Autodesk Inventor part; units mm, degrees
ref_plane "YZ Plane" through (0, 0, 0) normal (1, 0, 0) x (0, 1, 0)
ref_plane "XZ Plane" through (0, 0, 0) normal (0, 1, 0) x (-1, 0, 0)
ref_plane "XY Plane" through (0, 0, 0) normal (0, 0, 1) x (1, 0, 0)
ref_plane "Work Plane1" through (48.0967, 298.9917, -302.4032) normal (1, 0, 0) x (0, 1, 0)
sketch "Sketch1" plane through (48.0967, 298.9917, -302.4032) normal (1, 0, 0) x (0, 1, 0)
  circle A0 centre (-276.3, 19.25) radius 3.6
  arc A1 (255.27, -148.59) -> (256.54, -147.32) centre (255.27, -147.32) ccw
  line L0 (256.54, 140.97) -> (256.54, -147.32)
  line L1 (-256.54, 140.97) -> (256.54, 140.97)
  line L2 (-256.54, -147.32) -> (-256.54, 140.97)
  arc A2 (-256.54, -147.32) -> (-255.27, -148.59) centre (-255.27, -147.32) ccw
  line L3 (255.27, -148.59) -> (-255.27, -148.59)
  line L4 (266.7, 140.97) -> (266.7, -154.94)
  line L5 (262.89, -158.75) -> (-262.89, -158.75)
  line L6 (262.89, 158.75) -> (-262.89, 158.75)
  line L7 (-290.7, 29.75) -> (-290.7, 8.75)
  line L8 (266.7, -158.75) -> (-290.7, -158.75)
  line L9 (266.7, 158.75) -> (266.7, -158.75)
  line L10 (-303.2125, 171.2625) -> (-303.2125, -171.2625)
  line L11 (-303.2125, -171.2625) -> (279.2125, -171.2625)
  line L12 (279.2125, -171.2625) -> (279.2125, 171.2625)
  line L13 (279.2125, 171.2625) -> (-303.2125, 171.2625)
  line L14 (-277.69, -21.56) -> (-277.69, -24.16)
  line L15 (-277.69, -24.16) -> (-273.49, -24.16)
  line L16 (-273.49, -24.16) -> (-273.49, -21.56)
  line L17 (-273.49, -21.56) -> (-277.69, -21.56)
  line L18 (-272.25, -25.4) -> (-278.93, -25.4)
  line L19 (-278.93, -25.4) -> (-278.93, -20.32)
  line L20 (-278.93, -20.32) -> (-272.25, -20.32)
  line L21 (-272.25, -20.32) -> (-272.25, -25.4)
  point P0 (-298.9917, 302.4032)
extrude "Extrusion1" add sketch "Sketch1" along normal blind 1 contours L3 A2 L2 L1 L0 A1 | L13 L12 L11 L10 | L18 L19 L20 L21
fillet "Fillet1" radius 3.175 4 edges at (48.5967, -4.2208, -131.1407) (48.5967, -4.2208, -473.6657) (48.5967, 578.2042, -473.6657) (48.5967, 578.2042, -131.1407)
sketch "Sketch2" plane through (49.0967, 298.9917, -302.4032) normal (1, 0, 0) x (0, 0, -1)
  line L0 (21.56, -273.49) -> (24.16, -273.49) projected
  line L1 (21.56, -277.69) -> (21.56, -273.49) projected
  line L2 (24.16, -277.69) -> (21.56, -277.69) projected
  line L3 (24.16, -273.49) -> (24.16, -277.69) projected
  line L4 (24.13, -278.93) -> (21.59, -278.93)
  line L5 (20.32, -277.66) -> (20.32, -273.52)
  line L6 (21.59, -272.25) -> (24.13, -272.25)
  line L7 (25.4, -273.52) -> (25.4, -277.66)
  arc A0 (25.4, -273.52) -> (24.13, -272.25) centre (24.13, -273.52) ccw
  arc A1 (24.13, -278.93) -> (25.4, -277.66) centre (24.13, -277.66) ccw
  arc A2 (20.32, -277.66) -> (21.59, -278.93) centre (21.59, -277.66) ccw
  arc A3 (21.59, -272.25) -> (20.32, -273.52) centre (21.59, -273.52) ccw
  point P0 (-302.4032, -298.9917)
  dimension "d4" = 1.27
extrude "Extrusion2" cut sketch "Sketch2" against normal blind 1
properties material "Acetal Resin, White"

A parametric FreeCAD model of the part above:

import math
import FreeCAD as App
import Part
import Sketcher

V = App.Vector
Q = App.Units.Quantity


def edges_at(feature, points):
    """Names of the edges that pass closest to the given points."""
    edges = feature.Shape.Edges
    near = lambda p: min(range(len(edges)), key=lambda i: edges[i].distToShape(Part.Vertex(*p))[0])
    return sorted({f"Edge{near(p) + 1}" for p in points})


def add_polygon(sketch, points):
    """Adds a closed chain of lines whose ends are joined by coincident constraints."""
    first, n = sketch.GeometryCount, len(points)
    for a, b in zip(points, points[1:] + points[:1]):
        sketch.addGeometry(Part.LineSegment(App.Vector(*a, 0), App.Vector(*b, 0)), False)
    for i in range(n):
        sketch.addConstraint(Sketcher.Constraint("Coincident", first + i, 2, first + (i + 1) % n, 1))

doc = App.newDocument("Part")
body = doc.addObject("PartDesign::Body", "Body")

# Sketch on YZ plane
sketch1 = body.newObject("Sketcher::SketchObject", "Sketch")
sketch1.AttachmentSupport = (doc.getObject("YZ_Plane"), [""])
sketch1.MapMode = "FlatFace"
sketch1.AttachmentOffset = App.Placement(V(0, 0, 48.0967), App.Rotation())
add_polygon(sketch1, [(578.2, -131.1), (-4.2, -131.1), (-4.2, -473.7), (578.2, -473.7)])  # lines 0-3
sketch1.addGeometry(Part.Circle(V(22.7, -283.2, 0), V(0, 0, 1), 3.6), False)  # 4
add_polygon(sketch1, [(21.3, -326.6), (21.3, -324), (25.5, -324), (25.5, -326.6)])  # lines 5-8
sketch1.addConstraint([
    Sketcher.Constraint("Horizontal", 0),
    Sketcher.Constraint("Vertical", 1),
    Sketcher.Constraint("Horizontal", 2),
    Sketcher.Constraint("Vertical", 3),
    Sketcher.Constraint("Vertical", 5),
    Sketcher.Constraint("Horizontal", 6),
    Sketcher.Constraint("Vertical", 7),
    Sketcher.Constraint("Horizontal", 8),
    Sketcher.Constraint("Diameter", 4, Q("7.2 mm")),
    Sketcher.Constraint("DistanceX", 6, 1, 6, 2, Q("4.2 mm")),
    Sketcher.Constraint("DistanceY", 5, 1, 5, 2, Q("2.6 mm")),
    Sketcher.Constraint("DistanceX", 0, 2, 0, 1, Q("582.425 mm")),
    Sketcher.Constraint("DistanceY", 1, 2, 1, 1, Q("342.525 mm")),
    Sketcher.Constraint("DistanceX", 5, 2, 4, 3, Q("1.39 mm")),
    Sketcher.Constraint("DistanceY", 5, 2, 4, 3, Q("40.81 mm")),
    Sketcher.Constraint("DistanceX", -1, 1, 4, 3, Q("22.6917 mm")),
    Sketcher.Constraint("DistanceY", 4, 3, -1, 1, Q("283.1532 mm")),
    Sketcher.Constraint("DistanceX", 0, 2, -1, 1, Q("4.2208 mm")),
    Sketcher.Constraint("DistanceY", 0, 2, -1, 1, Q("131.1407 mm")),
])
pad1 = body.newObject("PartDesign::Pad", "Pad")
pad1.Profile = sketch1
pad1.Length = 1
doc.recompute()

fillet = body.newObject("PartDesign::Fillet", "Fillet")
fillet.Base = (pad1, edges_at(pad1, [
    (48.597, -4.221, -131.141),
    (48.597, -4.221, -473.666),
    (48.597, 578.204, -473.666),
    (48.597, 578.204, -131.141),
]))
fillet.Radius = 3.175

# Sketch on YZ plane
sketch2 = body.newObject("Sketcher::SketchObject", "Sketch001")
sketch2.AttachmentSupport = (doc.getObject("YZ_Plane"), [""])
sketch2.MapMode = "FlatFace"
sketch2.AttachmentOffset = App.Placement(V(0, 0, 49.0967), App.Rotation())
sketch2.addGeometry(Part.LineSegment(V(20.1, -324, 0), V(20.1, -326.5, 0)), False)  # 0
sketch2.addGeometry(Part.ArcOfCircle(Part.Circle(V(21.3, -326.5, 0), V(0, 0, 1), 1.3), math.radians(180), math.radians(270)), False)  # 1
sketch2.addGeometry(Part.LineSegment(V(21.3, -327.8, 0), V(25.5, -327.8, 0)), False)  # 2
sketch2.addGeometry(Part.ArcOfCircle(Part.Circle(V(25.5, -326.5, 0), V(0, 0, 1), 1.3), math.radians(-90), math.radians(0)), False)  # 3
sketch2.addGeometry(Part.LineSegment(V(26.7, -326.5, 0), V(26.7, -324, 0)), False)  # 4
sketch2.addGeometry(Part.ArcOfCircle(Part.Circle(V(25.5, -324, 0), V(0, 0, 1), 1.3), math.radians(0), math.radians(90)), False)  # 5
sketch2.addGeometry(Part.LineSegment(V(25.5, -322.7, 0), V(21.3, -322.7, 0)), False)  # 6
sketch2.addGeometry(Part.ArcOfCircle(Part.Circle(V(21.3, -324, 0), V(0, 0, 1), 1.3), math.radians(90), math.radians(180)), False)  # 7
add_polygon(sketch2, [(21.3, -324), (25.5, -324), (25.5, -326.6), (21.3, -326.6)])  # lines 8-11
sketch2.addConstraint([
    Sketcher.Constraint("Tangent", 0, 2, 1, 1),
    Sketcher.Constraint("Tangent", 1, 2, 2, 1),
    Sketcher.Constraint("Tangent", 2, 2, 3, 1),
    Sketcher.Constraint("Tangent", 3, 2, 4, 1),
    Sketcher.Constraint("Tangent", 4, 2, 5, 1),
    Sketcher.Constraint("Tangent", 5, 2, 6, 1),
    Sketcher.Constraint("Tangent", 6, 2, 7, 1),
    Sketcher.Constraint("Tangent", 7, 2, 0, 1),
    Sketcher.Constraint("Vertical", 0),
    Sketcher.Constraint("Horizontal", 2),
    Sketcher.Constraint("Vertical", 4),
    Sketcher.Constraint("Horizontal", 6),
    Sketcher.Constraint("Horizontal", 8),
    Sketcher.Constraint("Vertical", 9),
    Sketcher.Constraint("Horizontal", 10),
    Sketcher.Constraint("Vertical", 11),
    Sketcher.Constraint("Equal", 1, 3),
    Sketcher.Constraint("Equal", 3, 5),
    Sketcher.Constraint("Equal", 5, 7),
    Sketcher.Constraint("Radius", 1, Q("1.27 mm")),
    Sketcher.Constraint("DistanceX", 8, 1, 8, 2, Q("4.2 mm")),
    Sketcher.Constraint("DistanceY", 9, 2, 9, 1, Q("2.6 mm")),
    Sketcher.Constraint("DistanceX", 2, 1, 2, 2, Q("4.14 mm")),
    Sketcher.Constraint("DistanceY", 0, 2, 0, 1, Q("2.54 mm")),
    Sketcher.Constraint("DistanceX", 5, 3, 8, 2, Q("0.03 mm")),
    Sketcher.Constraint("DistanceY", 5, 3, 8, 2, Q("0.03 mm")),
    Sketcher.Constraint("DistanceX", -1, 1, 1, 3, Q("21.3317 mm")),
    Sketcher.Constraint("DistanceY", 1, 3, -1, 1, Q("326.5332 mm")),
])
pocket1 = body.newObject("PartDesign::Pocket", "Pocket")
pocket1.Profile = sketch2
pocket1.Length = 1

doc.recompute()
